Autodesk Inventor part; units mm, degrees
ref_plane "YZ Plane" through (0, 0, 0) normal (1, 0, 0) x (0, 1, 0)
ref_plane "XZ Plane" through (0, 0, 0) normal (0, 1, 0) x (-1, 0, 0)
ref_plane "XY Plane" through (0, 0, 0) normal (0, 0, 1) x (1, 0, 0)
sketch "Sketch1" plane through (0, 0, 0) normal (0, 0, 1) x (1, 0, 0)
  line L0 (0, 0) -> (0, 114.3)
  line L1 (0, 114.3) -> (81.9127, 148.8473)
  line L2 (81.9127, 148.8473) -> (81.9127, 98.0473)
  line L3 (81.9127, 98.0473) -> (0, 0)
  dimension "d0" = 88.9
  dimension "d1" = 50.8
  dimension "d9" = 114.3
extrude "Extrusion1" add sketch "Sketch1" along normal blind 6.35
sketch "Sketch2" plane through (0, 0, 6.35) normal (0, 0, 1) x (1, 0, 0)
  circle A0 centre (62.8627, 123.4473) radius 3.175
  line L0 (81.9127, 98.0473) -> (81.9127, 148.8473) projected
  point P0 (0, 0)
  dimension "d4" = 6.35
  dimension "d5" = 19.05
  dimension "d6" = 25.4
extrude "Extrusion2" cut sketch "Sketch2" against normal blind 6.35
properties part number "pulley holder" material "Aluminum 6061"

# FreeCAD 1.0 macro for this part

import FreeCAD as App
import Part
import Sketcher
Q = App.Units.Quantity


def add_polygon(sketch, points):
    """Adds a closed chain of lines whose ends are joined by coincident constraints."""
    first, n = sketch.GeometryCount, len(points)
    for a, b in zip(points, points[1:] + points[:1]):
        sketch.addGeometry(Part.LineSegment(App.Vector(*a, 0), App.Vector(*b, 0)), False)
    for i in range(n):
        sketch.addConstraint(Sketcher.Constraint("Coincident", first + i, 2, first + (i + 1) % n, 1))

doc = App.newDocument("Part")
body = doc.addObject("PartDesign::Body", "Body")

# Sketch on XY plane
sketch1 = doc.addObject("Sketcher::SketchObject", "Sketch")
body.addObject(sketch1)
sketch1.AttachmentSupport = (doc.XY_Plane, [""])
sketch1.MapMode = "FlatFace"
add_polygon(sketch1, [(0, 114), (0, 0), (82, 98), (82, 149)])  # lines 0-3
sketch1.addConstraint([
    Sketcher.Constraint("Vertical", 0),
    Sketcher.Constraint("Vertical", 2),
    Sketcher.Constraint("Coincident", 0, 2, -1, 1),
    Sketcher.Constraint("DistanceY", 2, 1, 2, 2, Q("2 in")),
    Sketcher.Constraint("DistanceY", 0, 2, 0, 1, Q("4.5 in")),
    Sketcher.Constraint("Distance", 3, Q("3.5 in")),
    Sketcher.Constraint("DistanceX", -1, 1, 1, 2, Q("3.2249 in")),
])
pad1 = doc.addObject("PartDesign::Pad", "Pad")
body.addObject(pad1)
pad1.Profile = sketch1
pad1.Length = Q("0.25 in")

# Sketch on XY plane
sketch2 = doc.addObject("Sketcher::SketchObject", "Sketch001")
body.addObject(sketch2)
sketch2.AttachmentSupport = (doc.XY_Plane, [""])
sketch2.MapMode = "FlatFace"
sketch2.AttachmentOffset = App.Placement(App.Vector(0, 0, 0.25 * 25.4), App.Rotation())
sketch2.addGeometry(Part.Circle(App.Vector(62.9, 123.4, 0), App.Vector(0, 0, 1), 3.2), False)
sketch2.addConstraint([
    Sketcher.Constraint("Diameter", 0, Q("0.25 in")),
    Sketcher.Constraint("DistanceX", -1, 1, 0, 3, Q("2.4749 in")),
    Sketcher.Constraint("DistanceY", -1, 1, 0, 3, 123.4473),
])
pocket1 = doc.addObject("PartDesign::Pocket", "Pocket")
body.addObject(pocket1)
pocket1.Profile = sketch2
pocket1.Length = Q("0.25 in")

doc.recompute()
